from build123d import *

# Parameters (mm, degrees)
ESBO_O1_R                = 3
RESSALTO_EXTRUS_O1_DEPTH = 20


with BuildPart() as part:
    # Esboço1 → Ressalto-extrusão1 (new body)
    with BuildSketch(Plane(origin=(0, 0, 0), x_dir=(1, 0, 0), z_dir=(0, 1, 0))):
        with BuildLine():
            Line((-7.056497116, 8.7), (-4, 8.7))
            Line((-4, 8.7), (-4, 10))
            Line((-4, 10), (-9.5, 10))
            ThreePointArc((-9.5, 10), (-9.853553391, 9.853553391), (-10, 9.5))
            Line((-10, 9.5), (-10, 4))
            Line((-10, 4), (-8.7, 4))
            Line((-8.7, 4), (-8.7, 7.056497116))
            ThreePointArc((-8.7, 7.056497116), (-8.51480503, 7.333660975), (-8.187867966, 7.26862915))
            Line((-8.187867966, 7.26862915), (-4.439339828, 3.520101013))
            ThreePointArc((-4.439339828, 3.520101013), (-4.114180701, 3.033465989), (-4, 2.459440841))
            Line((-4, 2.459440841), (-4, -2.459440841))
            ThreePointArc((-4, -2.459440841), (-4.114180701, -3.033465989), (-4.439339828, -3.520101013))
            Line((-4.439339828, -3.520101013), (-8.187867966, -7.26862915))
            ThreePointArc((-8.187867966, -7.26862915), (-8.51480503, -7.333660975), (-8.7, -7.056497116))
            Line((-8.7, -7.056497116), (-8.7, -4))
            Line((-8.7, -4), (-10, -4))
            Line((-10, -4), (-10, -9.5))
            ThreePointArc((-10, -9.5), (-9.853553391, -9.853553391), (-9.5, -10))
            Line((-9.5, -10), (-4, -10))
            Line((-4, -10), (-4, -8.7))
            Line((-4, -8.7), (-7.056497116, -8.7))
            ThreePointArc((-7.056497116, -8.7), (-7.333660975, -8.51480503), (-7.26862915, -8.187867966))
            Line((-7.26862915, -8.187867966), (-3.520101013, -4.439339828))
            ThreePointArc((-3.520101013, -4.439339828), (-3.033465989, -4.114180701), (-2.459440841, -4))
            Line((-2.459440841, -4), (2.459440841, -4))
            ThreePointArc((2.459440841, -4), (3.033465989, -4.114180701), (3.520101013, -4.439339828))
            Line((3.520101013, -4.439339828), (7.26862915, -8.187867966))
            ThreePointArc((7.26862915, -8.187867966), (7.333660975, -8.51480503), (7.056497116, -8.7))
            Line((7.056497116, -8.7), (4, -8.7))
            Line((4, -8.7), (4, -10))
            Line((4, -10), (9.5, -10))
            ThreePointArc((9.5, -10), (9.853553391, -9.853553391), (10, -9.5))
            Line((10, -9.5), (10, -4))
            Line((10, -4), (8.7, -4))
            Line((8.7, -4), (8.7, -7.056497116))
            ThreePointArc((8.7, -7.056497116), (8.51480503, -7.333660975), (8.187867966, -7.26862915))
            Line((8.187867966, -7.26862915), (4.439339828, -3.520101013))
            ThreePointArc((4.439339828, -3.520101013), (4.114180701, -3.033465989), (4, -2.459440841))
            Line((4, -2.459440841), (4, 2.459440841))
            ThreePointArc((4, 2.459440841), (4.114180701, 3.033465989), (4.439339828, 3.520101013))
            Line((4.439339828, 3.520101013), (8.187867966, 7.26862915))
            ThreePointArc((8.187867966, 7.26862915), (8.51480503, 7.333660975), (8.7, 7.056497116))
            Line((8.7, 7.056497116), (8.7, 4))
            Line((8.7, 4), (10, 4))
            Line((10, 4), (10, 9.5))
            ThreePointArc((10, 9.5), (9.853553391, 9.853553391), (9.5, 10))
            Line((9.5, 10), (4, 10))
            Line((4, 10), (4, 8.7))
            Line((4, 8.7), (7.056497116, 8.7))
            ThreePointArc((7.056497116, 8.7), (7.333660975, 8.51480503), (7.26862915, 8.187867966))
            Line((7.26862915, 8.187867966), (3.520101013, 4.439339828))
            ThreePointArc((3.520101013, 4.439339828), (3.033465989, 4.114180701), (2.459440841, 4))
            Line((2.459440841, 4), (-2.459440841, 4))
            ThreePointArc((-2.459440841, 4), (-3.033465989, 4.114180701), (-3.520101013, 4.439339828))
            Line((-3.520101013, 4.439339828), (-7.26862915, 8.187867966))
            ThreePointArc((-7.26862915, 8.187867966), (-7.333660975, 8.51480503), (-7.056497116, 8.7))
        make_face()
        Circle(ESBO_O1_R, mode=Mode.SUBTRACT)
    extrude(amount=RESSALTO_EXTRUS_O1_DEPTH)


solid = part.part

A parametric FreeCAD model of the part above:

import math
import FreeCAD as App
import Part
import Sketcher

V = App.Vector
Q = App.Units.Quantity

doc = App.newDocument("Part")
body = doc.addObject("PartDesign::Body", "Body")

# Sketch on XZ plane
sketch1 = body.newObject("Sketcher::SketchObject", "Sketch")
sketch1.AttachmentSupport = (doc.getObject("XZ_Plane"), [""])
sketch1.MapMode = "FlatFace"
sketch1.addGeometry(Part.LineSegment(V(-7.06, -8.7, 0), V(-4, -8.7, 0)), False)
sketch1.addGeometry(Part.LineSegment(V(-4, -8.7, 0), V(-4, -10, 0)), False)
sketch1.addGeometry(Part.LineSegment(V(-4, -10, 0), V(-9.5, -10, 0)), False)
sketch1.addGeometry(Part.ArcOfCircle(Part.Circle(V(-9.5, -9.5, 0), V(0, 0, 1), 0.5), math.radians(180), math.radians(270)), False)
sketch1.addGeometry(Part.LineSegment(V(-10, -9.5, 0), V(-10, -4, 0)), False)
sketch1.addGeometry(Part.LineSegment(V(-10, -4, 0), V(-8.7, -4, 0)), False)
sketch1.addGeometry(Part.LineSegment(V(-8.7, -4, 0), V(-8.7, -7.06, 0)), False)
sketch1.addGeometry(Part.ArcOfCircle(Part.Circle(V(-8.4, -7.06, 0), V(0, 0, 1), 0.3), math.radians(-180), math.radians(-45)), False)
sketch1.addGeometry(Part.LineSegment(V(-8.19, -7.27, 0), V(-4.44, -3.52, 0)), False)
sketch1.addGeometry(Part.ArcOfCircle(Part.Circle(V(-5.5, -2.46, 0), V(0, 0, 1), 1.5), math.radians(-45), math.radians(0)), False)
sketch1.addGeometry(Part.LineSegment(V(-4, -2.46, 0), V(-4, 2.46, 0)), False)
sketch1.addGeometry(Part.ArcOfCircle(Part.Circle(V(-5.5, 2.46, 0), V(0, 0, 1), 1.5), math.radians(0), math.radians(45)), False)
sketch1.addGeometry(Part.LineSegment(V(-4.44, 3.52, 0), V(-8.19, 7.27, 0)), False)
sketch1.addGeometry(Part.ArcOfCircle(Part.Circle(V(-8.4, 7.06, 0), V(0, 0, 1), 0.3), math.radians(45), math.radians(180)), False)
sketch1.addGeometry(Part.LineSegment(V(-8.7, 7.06, 0), V(-8.7, 4, 0)), False)
sketch1.addGeometry(Part.LineSegment(V(-8.7, 4, 0), V(-10, 4, 0)), False)
sketch1.addGeometry(Part.LineSegment(V(-10, 4, 0), V(-10, 9.5, 0)), False)
sketch1.addGeometry(Part.ArcOfCircle(Part.Circle(V(-9.5, 9.5, 0), V(0, 0, 1), 0.5), math.radians(90), math.radians(180)), False)
sketch1.addGeometry(Part.LineSegment(V(-9.5, 10, 0), V(-4, 10, 0)), False)
sketch1.addGeometry(Part.LineSegment(V(-4, 10, 0), V(-4, 8.7, 0)), False)
sketch1.addGeometry(Part.LineSegment(V(-4, 8.7, 0), V(-7.06, 8.7, 0)), False)
sketch1.addGeometry(Part.ArcOfCircle(Part.Circle(V(-7.06, 8.4, 0), V(0, 0, 1), 0.3), math.radians(90), math.radians(225)), False)
sketch1.addGeometry(Part.LineSegment(V(-7.27, 8.19, 0), V(-3.52, 4.44, 0)), False)
sketch1.addGeometry(Part.ArcOfCircle(Part.Circle(V(-2.46, 5.5, 0), V(0, 0, 1), 1.5), math.radians(-135), math.radians(-90)), False)
sketch1.addGeometry(Part.LineSegment(V(-2.46, 4, 0), V(2.46, 4, 0)), False)
sketch1.addGeometry(Part.ArcOfCircle(Part.Circle(V(2.46, 5.5, 0), V(0, 0, 1), 1.5), math.radians(-90), math.radians(-45)), False)
sketch1.addGeometry(Part.LineSegment(V(3.52, 4.44, 0), V(7.27, 8.19, 0)), False)
sketch1.addGeometry(Part.ArcOfCircle(Part.Circle(V(7.06, 8.4, 0), V(0, 0, 1), 0.3), math.radians(-45), math.radians(90)), False)
sketch1.addGeometry(Part.LineSegment(V(7.06, 8.7, 0), V(4, 8.7, 0)), False)
sketch1.addGeometry(Part.LineSegment(V(4, 8.7, 0), V(4, 10, 0)), False)
sketch1.addGeometry(Part.LineSegment(V(4, 10, 0), V(9.5, 10, 0)), False)
sketch1.addGeometry(Part.ArcOfCircle(Part.Circle(V(9.5, 9.5, 0), V(0, 0, 1), 0.5), math.radians(0), math.radians(90)), False)
sketch1.addGeometry(Part.LineSegment(V(10, 9.5, 0), V(10, 4, 0)), False)
sketch1.addGeometry(Part.LineSegment(V(10, 4, 0), V(8.7, 4, 0)), False)
sketch1.addGeometry(Part.LineSegment(V(8.7, 4, 0), V(8.7, 7.06, 0)), False)
sketch1.addGeometry(Part.ArcOfCircle(Part.Circle(V(8.4, 7.06, 0), V(0, 0, 1), 0.3), math.radians(0), math.radians(135)), False)
sketch1.addGeometry(Part.LineSegment(V(8.19, 7.27, 0), V(4.44, 3.52, 0)), False)
sketch1.addGeometry(Part.ArcOfCircle(Part.Circle(V(5.5, 2.46, 0), V(0, 0, 1), 1.5), math.radians(135), math.radians(180)), False)
sketch1.addGeometry(Part.LineSegment(V(4, 2.46, 0), V(4, -2.46, 0)), False)
sketch1.addGeometry(Part.ArcOfCircle(Part.Circle(V(5.5, -2.46, 0), V(0, 0, 1), 1.5), math.radians(180), math.radians(225)), False)
sketch1.addGeometry(Part.LineSegment(V(4.44, -3.52, 0), V(8.19, -7.27, 0)), False)
sketch1.addGeometry(Part.ArcOfCircle(Part.Circle(V(8.4, -7.06, 0), V(0, 0, 1), 0.3), math.radians(-135), math.radians(0)), False)
sketch1.addGeometry(Part.LineSegment(V(8.7, -7.06, 0), V(8.7, -4, 0)), False)
sketch1.addGeometry(Part.LineSegment(V(8.7, -4, 0), V(10, -4, 0)), False)
sketch1.addGeometry(Part.LineSegment(V(10, -4, 0), V(10, -9.5, 0)), False)
sketch1.addGeometry(Part.ArcOfCircle(Part.Circle(V(9.5, -9.5, 0), V(0, 0, 1), 0.5), math.radians(-90), math.radians(0)), False)
sketch1.addGeometry(Part.LineSegment(V(9.5, -10, 0), V(4, -10, 0)), False)
sketch1.addGeometry(Part.LineSegment(V(4, -10, 0), V(4, -8.7, 0)), False)
sketch1.addGeometry(Part.LineSegment(V(4, -8.7, 0), V(7.06, -8.7, 0)), False)
sketch1.addGeometry(Part.ArcOfCircle(Part.Circle(V(7.06, -8.4, 0), V(0, 0, 1), 0.3), math.radians(-90), math.radians(45)), False)
sketch1.addGeometry(Part.LineSegment(V(7.27, -8.19, 0), V(3.52, -4.44, 0)), False)
sketch1.addGeometry(Part.ArcOfCircle(Part.Circle(V(2.46, -5.5, 0), V(0, 0, 1), 1.5), math.radians(45), math.radians(90)), False)
sketch1.addGeometry(Part.LineSegment(V(2.46, -4, 0), V(-2.46, -4, 0)), False)
sketch1.addGeometry(Part.ArcOfCircle(Part.Circle(V(-2.46, -5.5, 0), V(0, 0, 1), 1.5), math.radians(90), math.radians(135)), False)
sketch1.addGeometry(Part.LineSegment(V(-3.52, -4.44, 0), V(-7.27, -8.19, 0)), False)
sketch1.addGeometry(Part.ArcOfCircle(Part.Circle(V(-7.06, -8.4, 0), V(0, 0, 1), 0.3), math.radians(135), math.radians(270)), False)
sketch1.addGeometry(Part.Circle(V(0, 0, 0), V(0, 0, 1), 3), False)
sketch1.addConstraint(Sketcher.Constraint("Coincident", 0, 2, 1, 1))
sketch1.addConstraint(Sketcher.Constraint("Coincident", 1, 2, 2, 1))
sketch1.addConstraint(Sketcher.Constraint("Tangent", 2, 2, 3, 2))
sketch1.addConstraint(Sketcher.Constraint("Tangent", 3, 1, 4, 1))
sketch1.addConstraint(Sketcher.Constraint("Coincident", 4, 2, 5, 1))
sketch1.addConstraint(Sketcher.Constraint("Coincident", 5, 2, 6, 1))
sketch1.addConstraint(Sketcher.Constraint("Tangent", 6, 2, 7, 1))
sketch1.addConstraint(Sketcher.Constraint("Tangent", 7, 2, 8, 1))
sketch1.addConstraint(Sketcher.Constraint("Tangent", 8, 2, 9, 1))
sketch1.addConstraint(Sketcher.Constraint("Tangent", 9, 2, 10, 1))
sketch1.addConstraint(Sketcher.Constraint("Tangent", 10, 2, 11, 1))
sketch1.addConstraint(Sketcher.Constraint("Tangent", 11, 2, 12, 1))
sketch1.addConstraint(Sketcher.Constraint("Tangent", 12, 2, 13, 1))
sketch1.addConstraint(Sketcher.Constraint("Tangent", 13, 2, 14, 1))
sketch1.addConstraint(Sketcher.Constraint("Coincident", 14, 2, 15, 1))
sketch1.addConstraint(Sketcher.Constraint("Coincident", 15, 2, 16, 1))
sketch1.addConstraint(Sketcher.Constraint("Tangent", 16, 2, 17, 2))
sketch1.addConstraint(Sketcher.Constraint("Tangent", 17, 1, 18, 1))
sketch1.addConstraint(Sketcher.Constraint("Coincident", 18, 2, 19, 1))
sketch1.addConstraint(Sketcher.Constraint("Coincident", 19, 2, 20, 1))
sketch1.addConstraint(Sketcher.Constraint("Tangent", 20, 2, 21, 1))
sketch1.addConstraint(Sketcher.Constraint("Tangent", 21, 2, 22, 1))
sketch1.addConstraint(Sketcher.Constraint("Tangent", 22, 2, 23, 1))
sketch1.addConstraint(Sketcher.Constraint("Tangent", 23, 2, 24, 1))
sketch1.addConstraint(Sketcher.Constraint("Tangent", 24, 2, 25, 1))
sketch1.addConstraint(Sketcher.Constraint("Tangent", 25, 2, 26, 1))
sketch1.addConstraint(Sketcher.Constraint("Tangent", 26, 2, 27, 1))
sketch1.addConstraint(Sketcher.Constraint("Tangent", 27, 2, 28, 1))
sketch1.addConstraint(Sketcher.Constraint("Coincident", 28, 2, 29, 1))
sketch1.addConstraint(Sketcher.Constraint("Coincident", 29, 2, 30, 1))
sketch1.addConstraint(Sketcher.Constraint("Tangent", 30, 2, 31, 2))
sketch1.addConstraint(Sketcher.Constraint("Tangent", 31, 1, 32, 1))
sketch1.addConstraint(Sketcher.Constraint("Coincident", 32, 2, 33, 1))
sketch1.addConstraint(Sketcher.Constraint("Coincident", 33, 2, 34, 1))
sketch1.addConstraint(Sketcher.Constraint("Tangent", 34, 2, 35, 1))
sketch1.addConstraint(Sketcher.Constraint("Tangent", 35, 2, 36, 1))
sketch1.addConstraint(Sketcher.Constraint("Tangent", 36, 2, 37, 1))
sketch1.addConstraint(Sketcher.Constraint("Tangent", 37, 2, 38, 1))
sketch1.addConstraint(Sketcher.Constraint("Tangent", 38, 2, 39, 1))
sketch1.addConstraint(Sketcher.Constraint("Tangent", 39, 2, 40, 1))
sketch1.addConstraint(Sketcher.Constraint("Tangent", 40, 2, 41, 1))
sketch1.addConstraint(Sketcher.Constraint("Tangent", 41, 2, 42, 1))
sketch1.addConstraint(Sketcher.Constraint("Coincident", 42, 2, 43, 1))
sketch1.addConstraint(Sketcher.Constraint("Coincident", 43, 2, 44, 1))
sketch1.addConstraint(Sketcher.Constraint("Tangent", 44, 2, 45, 2))
sketch1.addConstraint(Sketcher.Constraint("Tangent", 45, 1, 46, 1))
sketch1.addConstraint(Sketcher.Constraint("Coincident", 46, 2, 47, 1))
sketch1.addConstraint(Sketcher.Constraint("Coincident", 47, 2, 48, 1))
sketch1.addConstraint(Sketcher.Constraint("Tangent", 48, 2, 49, 1))
sketch1.addConstraint(Sketcher.Constraint("Tangent", 49, 2, 50, 1))
sketch1.addConstraint(Sketcher.Constraint("Tangent", 50, 2, 51, 1))
sketch1.addConstraint(Sketcher.Constraint("Tangent", 51, 2, 52, 1))
sketch1.addConstraint(Sketcher.Constraint("Tangent", 52, 2, 53, 1))
sketch1.addConstraint(Sketcher.Constraint("Tangent", 53, 2, 54, 1))
sketch1.addConstraint(Sketcher.Constraint("Tangent", 54, 2, 55, 1))
sketch1.addConstraint(Sketcher.Constraint("Tangent", 55, 2, 0, 1))
sketch1.addConstraint(Sketcher.Constraint("Horizontal", 0))
sketch1.addConstraint(Sketcher.Constraint("Vertical", 1))
sketch1.addConstraint(Sketcher.Constraint("Horizontal", 2))
sketch1.addConstraint(Sketcher.Constraint("Vertical", 4))
sketch1.addConstraint(Sketcher.Constraint("Horizontal", 5))
sketch1.addConstraint(Sketcher.Constraint("Vertical", 6))
sketch1.addConstraint(Sketcher.Constraint("Vertical", 10))
sketch1.addConstraint(Sketcher.Constraint("Vertical", 14))
sketch1.addConstraint(Sketcher.Constraint("Horizontal", 15))
sketch1.addConstraint(Sketcher.Constraint("Vertical", 16))
sketch1.addConstraint(Sketcher.Constraint("Horizontal", 18))
sketch1.addConstraint(Sketcher.Constraint("Vertical", 19))
sketch1.addConstraint(Sketcher.Constraint("Horizontal", 20))
sketch1.addConstraint(Sketcher.Constraint("Horizontal", 24))
sketch1.addConstraint(Sketcher.Constraint("Horizontal", 28))
sketch1.addConstraint(Sketcher.Constraint("Vertical", 29))
sketch1.addConstraint(Sketcher.Constraint("Horizontal", 30))
sketch1.addConstraint(Sketcher.Constraint("Vertical", 32))
sketch1.addConstraint(Sketcher.Constraint("Horizontal", 33))
sketch1.addConstraint(Sketcher.Constraint("Vertical", 34))
sketch1.addConstraint(Sketcher.Constraint("Vertical", 38))
sketch1.addConstraint(Sketcher.Constraint("Vertical", 42))
sketch1.addConstraint(Sketcher.Constraint("Horizontal", 43))
sketch1.addConstraint(Sketcher.Constraint("Vertical", 44))
sketch1.addConstraint(Sketcher.Constraint("Horizontal", 46))
sketch1.addConstraint(Sketcher.Constraint("Vertical", 47))
sketch1.addConstraint(Sketcher.Constraint("Horizontal", 48))
sketch1.addConstraint(Sketcher.Constraint("Horizontal", 52))
sketch1.addConstraint(Sketcher.Constraint("Coincident", 56, 3, -1, 1))
sketch1.addConstraint(Sketcher.Constraint("Equal", 9, 11))
sketch1.addConstraint(Sketcher.Constraint("Equal", 7, 13))
sketch1.addConstraint(Sketcher.Constraint("Equal", 3, 17))
sketch1.addConstraint(Sketcher.Constraint("Equal", 13, 21))
sketch1.addConstraint(Sketcher.Constraint("Equal", 11, 23))
sketch1.addConstraint(Sketcher.Constraint("Equal", 23, 25))
sketch1.addConstraint(Sketcher.Constraint("Equal", 21, 27))
sketch1.addConstraint(Sketcher.Constraint("Equal", 17, 31))
sketch1.addConstraint(Sketcher.Constraint("Equal", 27, 35))
sketch1.addConstraint(Sketcher.Constraint("Equal", 25, 37))
sketch1.addConstraint(Sketcher.Constraint("Equal", 37, 39))
sketch1.addConstraint(Sketcher.Constraint("Equal", 35, 41))
sketch1.addConstraint(Sketcher.Constraint("Equal", 31, 45))
sketch1.addConstraint(Sketcher.Constraint("Equal", 41, 49))
sketch1.addConstraint(Sketcher.Constraint("Equal", 39, 51))
sketch1.addConstraint(Sketcher.Constraint("Equal", 51, 53))
sketch1.addConstraint(Sketcher.Constraint("Equal", 49, 55))
sketch1.addConstraint(Sketcher.Constraint("Symmetric", 3, 3, 31, 3, -1, 1))
sketch1.addConstraint(Sketcher.Constraint("Symmetric", 7, 3, 35, 3, -1, 1))
sketch1.addConstraint(Sketcher.Constraint("Symmetric", 9, 3, 37, 3, -1, 1))
sketch1.addConstraint(Sketcher.Constraint("Symmetric", 13, 3, 41, 3, -1, 1))
sketch1.addConstraint(Sketcher.Constraint("Symmetric", 17, 3, 45, 3, -1, 1))
sketch1.addConstraint(Sketcher.Constraint("Symmetric", 21, 3, 49, 3, -1, 1))
sketch1.addConstraint(Sketcher.Constraint("Symmetric", 23, 3, 51, 3, -1, 1))
sketch1.addConstraint(Sketcher.Constraint("Symmetric", 27, 3, 55, 3, -1, 1))
sketch1.addConstraint(Sketcher.Constraint("Symmetric", 21, 3, 27, 3, -2))
sketch1.addConstraint(Sketcher.Constraint("Symmetric", 17, 3, 31, 3, -2))
sketch1.addConstraint(Sketcher.Constraint("Symmetric", 13, 3, 35, 3, -2))
sketch1.addConstraint(Sketcher.Constraint("Perpendicular", 8, 12))
sketch1.addConstraint(Sketcher.Constraint("Parallel", 12, 22))
sketch1.addConstraint(Sketcher.Constraint("Perpendicular", 22, 26))
sketch1.addConstraint(Sketcher.Constraint("Perpendicular", 36, 40))
sketch1.addConstraint(Sketcher.Constraint("Perpendicular", 50, 54))
sketch1.addConstraint(Sketcher.Constraint("Horizontal", 11, 3, 37, 3))
sketch1.addConstraint(Sketcher.Constraint("Horizontal", 15, 2, 23, 2))
sketch1.addConstraint(Sketcher.Constraint("Horizontal", 24, 2, 32, 2))
sketch1.addConstraint(Sketcher.Constraint("Horizontal", 5, 2, 42, 2))
sketch1.addConstraint(Sketcher.Constraint("Horizontal", 43, 2, 51, 2))
sketch1.addConstraint(Sketcher.Constraint("Vertical", 1, 2, 9, 2))
sketch1.addConstraint(Sketcher.Constraint("Vertical", 10, 2, 18, 2))
sketch1.addConstraint(Sketcher.Constraint("Vertical", 29, 2, 37, 2))
sketch1.addConstraint(Sketcher.Constraint("Vertical", 38, 2, 46, 2))
sketch1.addConstraint(Sketcher.Constraint("Equal", 43, 1))
sketch1.addConstraint(Sketcher.Constraint("Equal", 46, 4))
sketch1.addConstraint(Sketcher.Constraint("Equal", 48, 6))
sketch1.addConstraint(Sketcher.Constraint("Equal", 52, 10))
sketch1.addConstraint(Sketcher.Constraint("Diameter", 56, Q("6 mm")))
sketch1.addConstraint(Sketcher.Constraint("Radius", 3, Q("0.5 mm")))
sketch1.addConstraint(Sketcher.Constraint("Radius", 7, Q("0.3 mm")))
sketch1.addConstraint(Sketcher.Constraint("Radius", 9, Q("1.5 mm")))
sketch1.addConstraint(Sketcher.Constraint("DistanceX", 2, 2, 2, 1, Q("5.5 mm")))
sketch1.addConstraint(Sketcher.Constraint("DistanceX", 5, 1, 5, 2, Q("1.3 mm")))
sketch1.addConstraint(Sketcher.Constraint("DistanceX", 0, 2, -1, 1, Q("4 mm")))
sketch1.addConstraint(Sketcher.Constraint("DistanceX", 24, 1, 24, 2, Q("4.918882 mm")))
pad1 = body.newObject("PartDesign::Pad", "Pad")
pad1.Profile = sketch1
pad1.Length = 20
pad1.Reversed = True

doc.recompute()
